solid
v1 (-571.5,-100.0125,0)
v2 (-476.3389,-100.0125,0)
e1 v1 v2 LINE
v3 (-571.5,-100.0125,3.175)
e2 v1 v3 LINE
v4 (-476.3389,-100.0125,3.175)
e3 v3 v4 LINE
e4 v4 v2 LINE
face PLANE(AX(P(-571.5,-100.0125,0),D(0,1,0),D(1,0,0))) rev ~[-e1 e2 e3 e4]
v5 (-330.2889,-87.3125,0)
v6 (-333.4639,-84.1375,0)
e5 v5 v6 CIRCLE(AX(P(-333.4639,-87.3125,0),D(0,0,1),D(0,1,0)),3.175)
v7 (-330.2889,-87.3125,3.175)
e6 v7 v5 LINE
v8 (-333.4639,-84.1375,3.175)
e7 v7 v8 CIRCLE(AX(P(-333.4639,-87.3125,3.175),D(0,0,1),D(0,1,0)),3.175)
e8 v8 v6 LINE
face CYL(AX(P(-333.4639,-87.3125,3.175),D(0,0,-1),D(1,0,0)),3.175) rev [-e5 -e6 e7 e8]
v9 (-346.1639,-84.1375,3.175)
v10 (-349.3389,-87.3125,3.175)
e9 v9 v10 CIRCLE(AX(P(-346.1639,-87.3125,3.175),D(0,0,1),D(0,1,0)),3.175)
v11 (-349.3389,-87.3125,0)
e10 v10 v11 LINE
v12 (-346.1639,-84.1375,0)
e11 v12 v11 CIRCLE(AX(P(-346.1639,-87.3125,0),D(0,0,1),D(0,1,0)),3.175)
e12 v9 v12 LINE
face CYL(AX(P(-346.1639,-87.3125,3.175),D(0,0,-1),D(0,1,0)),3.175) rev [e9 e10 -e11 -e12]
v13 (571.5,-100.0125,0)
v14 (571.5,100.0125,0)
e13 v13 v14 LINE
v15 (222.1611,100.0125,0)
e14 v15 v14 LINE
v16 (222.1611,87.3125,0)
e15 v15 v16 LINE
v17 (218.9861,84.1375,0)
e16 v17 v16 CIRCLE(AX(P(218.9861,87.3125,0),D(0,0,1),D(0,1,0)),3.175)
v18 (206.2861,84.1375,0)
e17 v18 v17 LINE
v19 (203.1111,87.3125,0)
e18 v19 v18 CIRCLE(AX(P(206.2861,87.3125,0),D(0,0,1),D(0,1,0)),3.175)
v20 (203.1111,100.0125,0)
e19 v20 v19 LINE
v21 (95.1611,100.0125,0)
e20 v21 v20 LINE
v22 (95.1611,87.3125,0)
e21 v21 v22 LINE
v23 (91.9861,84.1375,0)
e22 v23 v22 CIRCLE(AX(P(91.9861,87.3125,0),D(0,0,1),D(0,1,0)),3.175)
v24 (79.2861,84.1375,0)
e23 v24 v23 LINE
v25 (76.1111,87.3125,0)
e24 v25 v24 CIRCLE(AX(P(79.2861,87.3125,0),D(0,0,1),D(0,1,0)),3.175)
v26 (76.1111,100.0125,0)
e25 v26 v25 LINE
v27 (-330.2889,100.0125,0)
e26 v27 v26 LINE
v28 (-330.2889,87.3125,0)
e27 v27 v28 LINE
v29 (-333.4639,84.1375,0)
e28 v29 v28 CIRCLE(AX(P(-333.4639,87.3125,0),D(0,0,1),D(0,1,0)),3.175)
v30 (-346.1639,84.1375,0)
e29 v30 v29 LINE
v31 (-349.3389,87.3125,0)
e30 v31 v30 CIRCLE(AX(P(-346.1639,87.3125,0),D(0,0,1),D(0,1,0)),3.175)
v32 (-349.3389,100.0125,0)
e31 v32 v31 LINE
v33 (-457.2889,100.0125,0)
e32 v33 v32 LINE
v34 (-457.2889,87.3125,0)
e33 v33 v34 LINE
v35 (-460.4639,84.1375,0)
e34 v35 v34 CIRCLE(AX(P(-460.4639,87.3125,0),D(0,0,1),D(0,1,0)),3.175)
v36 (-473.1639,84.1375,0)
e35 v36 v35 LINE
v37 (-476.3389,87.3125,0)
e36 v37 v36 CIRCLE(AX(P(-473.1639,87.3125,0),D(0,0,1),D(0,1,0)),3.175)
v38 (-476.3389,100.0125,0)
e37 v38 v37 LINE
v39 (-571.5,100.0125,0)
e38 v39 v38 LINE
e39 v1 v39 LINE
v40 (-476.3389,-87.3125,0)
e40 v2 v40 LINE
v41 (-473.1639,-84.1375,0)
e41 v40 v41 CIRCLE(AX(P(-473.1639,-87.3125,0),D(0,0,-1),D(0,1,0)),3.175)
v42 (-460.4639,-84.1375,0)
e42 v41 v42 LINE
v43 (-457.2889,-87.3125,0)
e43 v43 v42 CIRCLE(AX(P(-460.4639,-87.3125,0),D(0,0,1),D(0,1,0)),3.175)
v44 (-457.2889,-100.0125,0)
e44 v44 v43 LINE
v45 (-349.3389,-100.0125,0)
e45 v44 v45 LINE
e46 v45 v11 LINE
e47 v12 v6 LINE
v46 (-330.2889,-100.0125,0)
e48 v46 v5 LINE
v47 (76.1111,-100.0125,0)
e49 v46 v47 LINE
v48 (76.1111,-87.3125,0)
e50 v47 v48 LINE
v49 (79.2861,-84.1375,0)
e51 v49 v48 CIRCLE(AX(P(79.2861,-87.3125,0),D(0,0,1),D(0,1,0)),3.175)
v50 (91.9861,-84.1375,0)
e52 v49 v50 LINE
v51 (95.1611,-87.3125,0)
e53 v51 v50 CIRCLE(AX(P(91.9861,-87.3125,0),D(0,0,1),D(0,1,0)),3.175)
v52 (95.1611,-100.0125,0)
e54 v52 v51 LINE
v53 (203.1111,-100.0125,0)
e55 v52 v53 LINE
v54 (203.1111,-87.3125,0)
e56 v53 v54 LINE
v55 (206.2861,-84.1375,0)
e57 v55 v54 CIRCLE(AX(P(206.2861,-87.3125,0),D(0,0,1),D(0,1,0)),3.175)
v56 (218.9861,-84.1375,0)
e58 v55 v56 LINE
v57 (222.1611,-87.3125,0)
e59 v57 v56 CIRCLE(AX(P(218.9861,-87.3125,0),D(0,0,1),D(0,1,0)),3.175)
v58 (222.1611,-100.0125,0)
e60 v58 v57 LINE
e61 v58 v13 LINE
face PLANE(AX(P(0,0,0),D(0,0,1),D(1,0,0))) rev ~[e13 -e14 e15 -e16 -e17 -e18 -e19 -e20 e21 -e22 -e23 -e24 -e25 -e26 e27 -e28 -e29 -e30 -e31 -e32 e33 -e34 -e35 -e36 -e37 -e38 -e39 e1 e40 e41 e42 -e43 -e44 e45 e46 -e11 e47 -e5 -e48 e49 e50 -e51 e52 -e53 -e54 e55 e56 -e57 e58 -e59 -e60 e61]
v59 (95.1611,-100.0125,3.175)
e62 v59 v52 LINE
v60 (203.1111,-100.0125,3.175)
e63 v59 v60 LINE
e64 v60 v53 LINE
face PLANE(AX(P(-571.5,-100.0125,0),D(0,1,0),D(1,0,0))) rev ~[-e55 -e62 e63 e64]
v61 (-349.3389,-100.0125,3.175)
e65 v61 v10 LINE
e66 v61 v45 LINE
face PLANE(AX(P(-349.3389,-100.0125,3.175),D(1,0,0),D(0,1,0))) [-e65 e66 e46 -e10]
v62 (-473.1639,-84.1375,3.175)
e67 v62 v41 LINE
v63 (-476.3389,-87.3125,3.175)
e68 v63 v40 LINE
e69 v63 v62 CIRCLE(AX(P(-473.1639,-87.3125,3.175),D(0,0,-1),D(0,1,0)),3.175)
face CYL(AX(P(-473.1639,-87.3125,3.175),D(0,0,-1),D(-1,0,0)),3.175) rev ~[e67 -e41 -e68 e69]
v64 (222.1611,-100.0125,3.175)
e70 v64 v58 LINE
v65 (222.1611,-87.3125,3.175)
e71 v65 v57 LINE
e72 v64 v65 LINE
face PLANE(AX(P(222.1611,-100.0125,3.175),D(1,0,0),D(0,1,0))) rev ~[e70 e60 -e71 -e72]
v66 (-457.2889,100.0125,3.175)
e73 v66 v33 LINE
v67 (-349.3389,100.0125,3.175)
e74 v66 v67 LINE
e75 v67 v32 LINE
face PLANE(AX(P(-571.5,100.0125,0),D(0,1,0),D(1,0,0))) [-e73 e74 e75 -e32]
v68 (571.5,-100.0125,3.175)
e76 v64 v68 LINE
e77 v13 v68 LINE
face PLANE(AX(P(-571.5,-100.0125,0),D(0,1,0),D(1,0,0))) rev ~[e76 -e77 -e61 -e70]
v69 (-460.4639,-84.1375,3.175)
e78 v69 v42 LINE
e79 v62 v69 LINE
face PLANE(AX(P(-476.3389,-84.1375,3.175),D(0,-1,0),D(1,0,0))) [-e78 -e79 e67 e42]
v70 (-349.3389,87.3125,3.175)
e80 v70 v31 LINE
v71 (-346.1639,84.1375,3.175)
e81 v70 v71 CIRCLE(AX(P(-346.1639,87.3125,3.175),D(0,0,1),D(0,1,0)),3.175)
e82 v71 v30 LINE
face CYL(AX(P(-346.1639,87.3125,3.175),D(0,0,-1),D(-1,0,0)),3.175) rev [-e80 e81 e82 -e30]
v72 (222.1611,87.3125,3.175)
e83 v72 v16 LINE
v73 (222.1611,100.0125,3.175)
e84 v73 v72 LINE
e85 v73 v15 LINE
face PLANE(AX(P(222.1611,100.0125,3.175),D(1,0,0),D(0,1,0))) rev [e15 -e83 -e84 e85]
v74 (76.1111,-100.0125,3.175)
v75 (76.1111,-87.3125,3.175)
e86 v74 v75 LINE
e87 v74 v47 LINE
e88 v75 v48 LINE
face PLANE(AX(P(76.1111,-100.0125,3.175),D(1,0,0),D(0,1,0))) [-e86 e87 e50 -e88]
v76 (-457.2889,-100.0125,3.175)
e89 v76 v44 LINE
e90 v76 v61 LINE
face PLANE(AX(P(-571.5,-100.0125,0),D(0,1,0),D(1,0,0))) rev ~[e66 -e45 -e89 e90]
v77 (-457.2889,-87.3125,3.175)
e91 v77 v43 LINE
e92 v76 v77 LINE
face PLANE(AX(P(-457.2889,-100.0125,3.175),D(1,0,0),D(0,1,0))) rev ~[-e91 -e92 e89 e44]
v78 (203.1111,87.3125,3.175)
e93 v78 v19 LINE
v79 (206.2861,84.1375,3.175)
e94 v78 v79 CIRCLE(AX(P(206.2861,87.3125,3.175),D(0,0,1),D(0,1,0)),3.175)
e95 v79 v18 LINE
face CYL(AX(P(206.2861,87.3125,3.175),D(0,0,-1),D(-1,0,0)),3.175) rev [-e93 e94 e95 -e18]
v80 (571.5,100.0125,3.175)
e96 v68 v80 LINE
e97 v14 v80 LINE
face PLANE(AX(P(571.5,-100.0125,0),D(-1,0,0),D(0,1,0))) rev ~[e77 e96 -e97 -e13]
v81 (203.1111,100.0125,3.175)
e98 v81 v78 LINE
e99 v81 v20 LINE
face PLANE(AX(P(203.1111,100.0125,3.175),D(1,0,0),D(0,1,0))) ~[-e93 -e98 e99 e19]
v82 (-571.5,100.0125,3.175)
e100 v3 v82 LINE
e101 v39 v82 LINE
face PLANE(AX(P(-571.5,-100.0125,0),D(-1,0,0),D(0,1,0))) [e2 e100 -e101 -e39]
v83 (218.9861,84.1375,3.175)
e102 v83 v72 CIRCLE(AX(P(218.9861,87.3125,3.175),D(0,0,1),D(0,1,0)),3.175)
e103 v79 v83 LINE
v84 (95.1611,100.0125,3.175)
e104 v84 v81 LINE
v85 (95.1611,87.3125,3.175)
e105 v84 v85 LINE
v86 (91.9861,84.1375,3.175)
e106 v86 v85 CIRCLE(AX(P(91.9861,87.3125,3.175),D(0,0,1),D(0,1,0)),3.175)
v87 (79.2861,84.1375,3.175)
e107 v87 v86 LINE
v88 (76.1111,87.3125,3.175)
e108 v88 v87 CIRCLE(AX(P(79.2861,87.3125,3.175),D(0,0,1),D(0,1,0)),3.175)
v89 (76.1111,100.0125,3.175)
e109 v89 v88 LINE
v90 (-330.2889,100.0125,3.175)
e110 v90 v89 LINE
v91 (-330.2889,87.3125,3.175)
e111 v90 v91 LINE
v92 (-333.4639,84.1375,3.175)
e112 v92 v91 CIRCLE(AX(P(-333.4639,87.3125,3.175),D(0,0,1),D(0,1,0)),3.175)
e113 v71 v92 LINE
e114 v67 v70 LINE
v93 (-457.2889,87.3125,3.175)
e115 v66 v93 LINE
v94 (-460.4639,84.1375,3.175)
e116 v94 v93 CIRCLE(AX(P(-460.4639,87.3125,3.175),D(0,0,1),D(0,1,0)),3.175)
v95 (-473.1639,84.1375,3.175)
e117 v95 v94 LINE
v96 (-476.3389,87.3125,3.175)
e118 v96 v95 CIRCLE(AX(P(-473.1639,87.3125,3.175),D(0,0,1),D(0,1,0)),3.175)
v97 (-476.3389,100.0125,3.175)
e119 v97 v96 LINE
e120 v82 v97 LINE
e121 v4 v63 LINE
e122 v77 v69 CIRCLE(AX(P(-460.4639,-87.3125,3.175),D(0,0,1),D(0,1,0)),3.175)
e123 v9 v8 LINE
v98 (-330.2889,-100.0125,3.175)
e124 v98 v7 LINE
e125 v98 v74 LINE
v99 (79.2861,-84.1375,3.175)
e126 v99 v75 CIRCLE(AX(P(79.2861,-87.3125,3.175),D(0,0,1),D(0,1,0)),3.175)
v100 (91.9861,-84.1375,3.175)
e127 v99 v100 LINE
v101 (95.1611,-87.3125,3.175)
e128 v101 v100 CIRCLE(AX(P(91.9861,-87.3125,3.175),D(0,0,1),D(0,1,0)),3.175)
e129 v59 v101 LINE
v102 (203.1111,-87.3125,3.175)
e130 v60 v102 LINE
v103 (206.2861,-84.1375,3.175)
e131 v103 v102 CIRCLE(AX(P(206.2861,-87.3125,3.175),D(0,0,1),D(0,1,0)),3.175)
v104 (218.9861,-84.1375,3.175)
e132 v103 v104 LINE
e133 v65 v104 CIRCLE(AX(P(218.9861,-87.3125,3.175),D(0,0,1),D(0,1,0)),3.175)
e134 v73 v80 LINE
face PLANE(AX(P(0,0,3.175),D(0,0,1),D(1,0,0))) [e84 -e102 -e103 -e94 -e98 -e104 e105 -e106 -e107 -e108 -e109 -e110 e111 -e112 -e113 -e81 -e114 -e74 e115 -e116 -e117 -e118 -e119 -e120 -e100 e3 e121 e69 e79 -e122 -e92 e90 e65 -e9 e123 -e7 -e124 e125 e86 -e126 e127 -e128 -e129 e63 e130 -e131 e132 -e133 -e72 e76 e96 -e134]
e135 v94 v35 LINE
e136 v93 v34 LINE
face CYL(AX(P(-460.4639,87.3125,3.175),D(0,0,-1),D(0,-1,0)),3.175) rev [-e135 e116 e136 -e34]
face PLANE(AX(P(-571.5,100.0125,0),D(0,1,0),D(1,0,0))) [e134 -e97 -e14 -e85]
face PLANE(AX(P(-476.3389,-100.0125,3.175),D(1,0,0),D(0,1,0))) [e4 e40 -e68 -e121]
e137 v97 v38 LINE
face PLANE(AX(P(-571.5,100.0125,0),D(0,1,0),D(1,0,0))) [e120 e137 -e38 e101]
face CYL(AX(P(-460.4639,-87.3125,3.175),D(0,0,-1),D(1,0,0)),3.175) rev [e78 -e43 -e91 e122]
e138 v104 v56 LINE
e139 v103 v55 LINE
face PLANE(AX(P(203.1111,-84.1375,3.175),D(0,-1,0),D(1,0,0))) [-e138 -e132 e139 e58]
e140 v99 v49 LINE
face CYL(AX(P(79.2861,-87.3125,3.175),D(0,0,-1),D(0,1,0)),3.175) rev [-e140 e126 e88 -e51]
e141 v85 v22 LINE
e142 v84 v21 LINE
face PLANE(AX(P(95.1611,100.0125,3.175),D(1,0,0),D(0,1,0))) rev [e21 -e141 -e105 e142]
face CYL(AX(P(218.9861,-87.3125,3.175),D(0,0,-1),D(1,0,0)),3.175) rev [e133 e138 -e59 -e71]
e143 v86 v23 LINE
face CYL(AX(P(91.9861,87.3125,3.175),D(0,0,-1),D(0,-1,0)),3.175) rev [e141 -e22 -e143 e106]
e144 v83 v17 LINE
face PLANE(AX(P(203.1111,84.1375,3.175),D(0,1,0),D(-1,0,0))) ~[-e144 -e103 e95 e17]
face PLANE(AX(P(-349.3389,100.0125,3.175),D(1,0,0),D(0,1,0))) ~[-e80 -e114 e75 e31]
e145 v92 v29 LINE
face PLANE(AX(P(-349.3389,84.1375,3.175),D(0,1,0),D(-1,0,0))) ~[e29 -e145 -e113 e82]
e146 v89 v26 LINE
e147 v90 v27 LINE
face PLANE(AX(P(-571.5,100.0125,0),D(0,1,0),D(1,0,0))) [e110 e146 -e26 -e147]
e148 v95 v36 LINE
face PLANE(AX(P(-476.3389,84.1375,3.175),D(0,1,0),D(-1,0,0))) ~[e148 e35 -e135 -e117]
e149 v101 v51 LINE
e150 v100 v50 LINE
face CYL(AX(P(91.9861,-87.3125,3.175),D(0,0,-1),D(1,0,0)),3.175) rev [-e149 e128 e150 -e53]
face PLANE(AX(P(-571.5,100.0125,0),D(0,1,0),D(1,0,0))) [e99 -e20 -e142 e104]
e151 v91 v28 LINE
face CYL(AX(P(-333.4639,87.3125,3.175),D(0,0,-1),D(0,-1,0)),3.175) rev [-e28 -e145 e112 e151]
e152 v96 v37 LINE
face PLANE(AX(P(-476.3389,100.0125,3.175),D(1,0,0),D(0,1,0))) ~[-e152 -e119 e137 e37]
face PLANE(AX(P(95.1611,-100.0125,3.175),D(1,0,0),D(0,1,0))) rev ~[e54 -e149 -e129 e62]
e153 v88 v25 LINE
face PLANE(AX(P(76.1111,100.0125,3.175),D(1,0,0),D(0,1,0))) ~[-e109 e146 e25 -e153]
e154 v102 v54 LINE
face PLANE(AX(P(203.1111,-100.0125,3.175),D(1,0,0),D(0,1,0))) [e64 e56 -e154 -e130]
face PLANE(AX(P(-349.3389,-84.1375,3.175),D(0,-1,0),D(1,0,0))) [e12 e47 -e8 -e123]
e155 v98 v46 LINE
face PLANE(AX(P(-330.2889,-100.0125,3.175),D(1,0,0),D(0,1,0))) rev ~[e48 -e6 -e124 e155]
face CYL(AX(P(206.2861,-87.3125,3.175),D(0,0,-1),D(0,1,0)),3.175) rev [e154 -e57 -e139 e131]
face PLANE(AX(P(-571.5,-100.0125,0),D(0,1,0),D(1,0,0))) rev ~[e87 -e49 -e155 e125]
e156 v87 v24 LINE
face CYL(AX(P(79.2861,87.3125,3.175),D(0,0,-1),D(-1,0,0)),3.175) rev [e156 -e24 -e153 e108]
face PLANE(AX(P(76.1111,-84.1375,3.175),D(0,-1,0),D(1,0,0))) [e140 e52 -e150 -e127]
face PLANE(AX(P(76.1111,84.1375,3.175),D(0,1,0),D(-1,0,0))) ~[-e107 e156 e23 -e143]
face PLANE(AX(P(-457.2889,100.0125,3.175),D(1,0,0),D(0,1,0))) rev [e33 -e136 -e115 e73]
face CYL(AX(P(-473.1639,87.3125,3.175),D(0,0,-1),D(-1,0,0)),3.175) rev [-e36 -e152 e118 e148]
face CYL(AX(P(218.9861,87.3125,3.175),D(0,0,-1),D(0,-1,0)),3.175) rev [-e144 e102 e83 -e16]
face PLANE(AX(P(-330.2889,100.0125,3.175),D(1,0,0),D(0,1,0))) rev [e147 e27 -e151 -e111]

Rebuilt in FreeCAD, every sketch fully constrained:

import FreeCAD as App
import Part
import Sketcher
Q = App.Units.Quantity


def edges_at(feature, points):
    """Names of the edges that pass closest to the given points."""
    edges = feature.Shape.Edges
    near = lambda p: min(range(len(edges)), key=lambda i: edges[i].distToShape(Part.Vertex(*p))[0])
    return sorted({f"Edge{near(p) + 1}" for p in points})

doc = App.newDocument("Part")
body = doc.addObject("PartDesign::Body", "Body")

# Sketch on XY plane
sketch1 = doc.addObject("Sketcher::SketchObject", "Sketch")
body.addObject(sketch1)
sketch1.AttachmentSupport = (doc.XY_Plane, [""])
sketch1.MapMode = "FlatFace"
sketch1.addGeometry([
    Part.LineSegment(App.Vector(-571.5, 100.0125, 0), App.Vector(-571.5, -100.0125, 0)),
    Part.LineSegment(App.Vector(-571.5, -100.0125, 0), App.Vector(571.5, -100.0125, 0)),
    Part.LineSegment(App.Vector(571.5, -100.0125, 0), App.Vector(571.5, 100.0125, 0)),
    Part.LineSegment(App.Vector(571.5, 100.0125, 0), App.Vector(-571.5, 100.0125, 0)),
], False)
sketch1.addConstraint([
    Sketcher.Constraint("Coincident", 0, 2, 1, 1),
    Sketcher.Constraint("Coincident", 1, 2, 2, 1),
    Sketcher.Constraint("Coincident", 2, 2, 3, 1),
    Sketcher.Constraint("Coincident", 3, 2, 0, 1),
    Sketcher.Constraint("Vertical", 0),
    Sketcher.Constraint("Horizontal", 1),
    Sketcher.Constraint("Vertical", 2),
    Sketcher.Constraint("Horizontal", 3),
    Sketcher.Constraint("Symmetric", 0, 2, 2, 2, -1, 1),
    Sketcher.Constraint("DistanceX", 1, 1, 1, 2, Q("45 in")),
    Sketcher.Constraint("DistanceY", 0, 2, 0, 1, Q("7.875 in")),
])
pad1 = doc.addObject("PartDesign::Pad", "Pad")
body.addObject(pad1)
pad1.Profile = sketch1
pad1.Length = Q("0.125 in")

# Sketch on XY plane
sketch2 = doc.addObject("Sketcher::SketchObject", "Sketch001")
body.addObject(sketch2)
sketch2.AttachmentSupport = (doc.XY_Plane, [""])
sketch2.MapMode = "FlatFace"
sketch2.AttachmentOffset = App.Placement(App.Vector(0, 0, 0.125 * 25.4), App.Rotation())
sketch2.addGeometry([
    Part.LineSegment(App.Vector(-476.3389, -84.1375, 0), App.Vector(-476.3389, -100.0125, 0)),  # 0
    Part.LineSegment(App.Vector(-476.3389, -100.0125, 0), App.Vector(-457.2889, -100.0125, 0)),  # 1
    Part.LineSegment(App.Vector(-457.2889, -100.0125, 0), App.Vector(-457.2889, -84.1375, 0)),  # 2
    Part.LineSegment(App.Vector(-457.2889, -84.1375, 0), App.Vector(-476.3389, -84.1375, 0)),  # 3
    Part.LineSegment(App.Vector(-349.3389, -84.1375, 0), App.Vector(-349.3389, -100.0125, 0)),  # 4
    Part.LineSegment(App.Vector(-349.3389, -100.0125, 0), App.Vector(-330.2889, -100.0125, 0)),  # 5
    Part.LineSegment(App.Vector(-330.2889, -100.0125, 0), App.Vector(-330.2889, -84.1375, 0)),  # 6
    Part.LineSegment(App.Vector(-330.2889, -84.1375, 0), App.Vector(-349.3389, -84.1375, 0)),  # 7
    Part.LineSegment(App.Vector(76.1111, -84.1375, 0), App.Vector(76.1111, -100.0125, 0)),  # 8
    Part.LineSegment(App.Vector(76.1111, -100.0125, 0), App.Vector(95.1611, -100.0125, 0)),  # 9
    Part.LineSegment(App.Vector(95.1611, -100.0125, 0), App.Vector(95.1611, -84.1375, 0)),  # 10
    Part.LineSegment(App.Vector(95.1611, -84.1375, 0), App.Vector(76.1111, -84.1375, 0)),  # 11
    Part.LineSegment(App.Vector(203.1111, -84.1375, 0), App.Vector(203.1111, -100.0125, 0)),  # 12
    Part.LineSegment(App.Vector(203.1111, -100.0125, 0), App.Vector(222.1611, -100.0125, 0)),  # 13
    Part.LineSegment(App.Vector(222.1611, -100.0125, 0), App.Vector(222.1611, -84.1375, 0)),  # 14
    Part.LineSegment(App.Vector(222.1611, -84.1375, 0), App.Vector(203.1111, -84.1375, 0)),  # 15
], False)
sketch2.addConstraint([
    Sketcher.Constraint("Coincident", 0, 2, 1, 1),
    Sketcher.Constraint("Coincident", 1, 2, 2, 1),
    Sketcher.Constraint("Coincident", 2, 2, 3, 1),
    Sketcher.Constraint("Coincident", 3, 2, 0, 1),
    Sketcher.Constraint("Coincident", 4, 2, 5, 1),
    Sketcher.Constraint("Coincident", 5, 2, 6, 1),
    Sketcher.Constraint("Coincident", 6, 2, 7, 1),
    Sketcher.Constraint("Coincident", 7, 2, 4, 1),
    Sketcher.Constraint("Coincident", 8, 2, 9, 1),
    Sketcher.Constraint("Coincident", 9, 2, 10, 1),
    Sketcher.Constraint("Coincident", 10, 2, 11, 1),
    Sketcher.Constraint("Coincident", 11, 2, 8, 1),
    Sketcher.Constraint("Coincident", 12, 2, 13, 1),
    Sketcher.Constraint("Coincident", 13, 2, 14, 1),
    Sketcher.Constraint("Coincident", 14, 2, 15, 1),
    Sketcher.Constraint("Coincident", 15, 2, 12, 1),
    Sketcher.Constraint("Vertical", 0),
    Sketcher.Constraint("Horizontal", 1),
    Sketcher.Constraint("Vertical", 2),
    Sketcher.Constraint("Horizontal", 3),
    Sketcher.Constraint("Vertical", 4),
    Sketcher.Constraint("Horizontal", 5),
    Sketcher.Constraint("Vertical", 6),
    Sketcher.Constraint("Horizontal", 7),
    Sketcher.Constraint("Vertical", 8),
    Sketcher.Constraint("Horizontal", 9),
    Sketcher.Constraint("Vertical", 10),
    Sketcher.Constraint("Horizontal", 11),
    Sketcher.Constraint("Vertical", 12),
    Sketcher.Constraint("Horizontal", 13),
    Sketcher.Constraint("Vertical", 14),
    Sketcher.Constraint("Horizontal", 15),
    Sketcher.Constraint("Horizontal", 1, 2, 4, 2),
    Sketcher.Constraint("Horizontal", 3, 2, 6, 2),
    Sketcher.Constraint("Horizontal", 5, 2, 8, 2),
    Sketcher.Constraint("Horizontal", 7, 2, 10, 2),
    Sketcher.Constraint("Horizontal", 9, 2, 12, 2),
    Sketcher.Constraint("Horizontal", 11, 2, 14, 2),
    Sketcher.Constraint("Equal", 3, 5),
    Sketcher.Constraint("Equal", 7, 9),
    Sketcher.Constraint("Equal", 11, 13),
    Sketcher.Constraint("DistanceX", 0, 2, 4, 2, Q("5 in")),
    Sketcher.Constraint("DistanceX", 5, 2, 8, 2, Q("16 in")),
    Sketcher.Constraint("DistanceX", 8, 2, 12, 2, Q("5 in")),
    Sketcher.Constraint("DistanceX", 1, 1, 1, 2, Q("0.75 in")),
    Sketcher.Constraint("DistanceY", 0, 2, 0, 1, Q("0.625 in")),
    Sketcher.Constraint("DistanceY", 0, 2, -1, 1, Q("3.9375 in")),
    Sketcher.Constraint("DistanceX", 0, 2, -1, 1, Q("18.7535 in")),
])
pocket1 = doc.addObject("PartDesign::Pocket", "Pocket")
body.addObject(pocket1)
pocket1.Profile = sketch2
pocket1.Type = "ThroughAll"
doc.recompute()

fillet = doc.addObject("PartDesign::Fillet", "Fillet")
body.addObject(fillet)
fillet.Base = (pocket1, edges_at(pocket1, [
    (-476.339, -84.138, 1.587),
    (-457.289, -84.138, 1.587),
    (-349.339, -84.138, 1.587),
    (-330.289, -84.138, 1.587),
    (76.111, -84.138, 1.587),
    (95.161, -84.138, 1.587),
    (203.111, -84.138, 1.587),
    (222.161, -84.138, 1.587),
]))
fillet.Radius = Q("0.125 in")
doc.recompute()

mirrored = doc.addObject("PartDesign::Mirrored", "Mirrored")
body.addObject(mirrored)
mirrored.Originals = [pocket1]
mirrored.MirrorPlane = (doc.XZ_Plane, [""])
body.Tip = mirrored
doc.recompute()

fillet2 = doc.addObject("PartDesign::Fillet", "Fillet001")
body.addObject(fillet2)
fillet2.Base = (mirrored, edges_at(mirrored, [
    (-476.339, 84.138, 1.587),
    (-457.289, 84.138, 1.587),
    (-349.339, 84.138, 1.587),
    (-330.289, 84.138, 1.587),
    (76.111, 84.138, 1.587),
    (95.161, 84.138, 1.587),
    (203.111, 84.138, 1.587),
    (222.161, 84.138, 1.587),
]))
fillet2.Radius = Q("0.125 in")

doc.recompute()
